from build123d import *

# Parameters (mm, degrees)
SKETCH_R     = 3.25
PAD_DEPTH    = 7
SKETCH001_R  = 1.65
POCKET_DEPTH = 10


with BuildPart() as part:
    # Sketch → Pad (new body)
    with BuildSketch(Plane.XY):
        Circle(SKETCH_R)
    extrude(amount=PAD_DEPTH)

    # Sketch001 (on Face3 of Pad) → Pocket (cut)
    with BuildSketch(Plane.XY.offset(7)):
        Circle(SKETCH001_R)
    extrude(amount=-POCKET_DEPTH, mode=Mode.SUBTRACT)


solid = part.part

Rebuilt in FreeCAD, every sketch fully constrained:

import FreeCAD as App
import Part
import Sketcher

V = App.Vector
Q = App.Units.Quantity

doc = App.newDocument("Part")
body = doc.addObject("PartDesign::Body", "Body")

sketch1 = body.newObject("Sketcher::SketchObject", "Sketch")
sketch1.AttachmentSupport = (doc.getObject("XY_Plane"), [""])
sketch1.MapMode = "FlatFace"
sketch1.addGeometry(Part.Circle(V(0, 0, 0), V(0, 0, 1), 3.2), False)
sketch1.addConstraint(Sketcher.Constraint("Coincident", 0, 3, -1, 1))
sketch1.addConstraint(Sketcher.Constraint("Diameter", 0, Q("6.5 mm")))
pad1 = body.newObject("PartDesign::Pad", "Pad")
pad1.Profile = sketch1
pad1.Length = 7

sketch2 = body.newObject("Sketcher::SketchObject", "Sketch001")
sketch2.AttachmentSupport = (doc.getObject("XY_Plane"), [""])
sketch2.MapMode = "FlatFace"
sketch2.AttachmentOffset = App.Placement(V(0, 0, 7), App.Rotation())
sketch2.addGeometry(Part.Circle(V(0, 0, 0), V(0, 0, 1), 1.6), False)
sketch2.addConstraint(Sketcher.Constraint("Coincident", 0, 3, -1, 1))
sketch2.addConstraint(Sketcher.Constraint("Diameter", 0, Q("3.3 mm")))
pocket1 = body.newObject("PartDesign::Pocket", "Pocket")
pocket1.Profile = sketch2
pocket1.Length = 10

doc.recompute()
